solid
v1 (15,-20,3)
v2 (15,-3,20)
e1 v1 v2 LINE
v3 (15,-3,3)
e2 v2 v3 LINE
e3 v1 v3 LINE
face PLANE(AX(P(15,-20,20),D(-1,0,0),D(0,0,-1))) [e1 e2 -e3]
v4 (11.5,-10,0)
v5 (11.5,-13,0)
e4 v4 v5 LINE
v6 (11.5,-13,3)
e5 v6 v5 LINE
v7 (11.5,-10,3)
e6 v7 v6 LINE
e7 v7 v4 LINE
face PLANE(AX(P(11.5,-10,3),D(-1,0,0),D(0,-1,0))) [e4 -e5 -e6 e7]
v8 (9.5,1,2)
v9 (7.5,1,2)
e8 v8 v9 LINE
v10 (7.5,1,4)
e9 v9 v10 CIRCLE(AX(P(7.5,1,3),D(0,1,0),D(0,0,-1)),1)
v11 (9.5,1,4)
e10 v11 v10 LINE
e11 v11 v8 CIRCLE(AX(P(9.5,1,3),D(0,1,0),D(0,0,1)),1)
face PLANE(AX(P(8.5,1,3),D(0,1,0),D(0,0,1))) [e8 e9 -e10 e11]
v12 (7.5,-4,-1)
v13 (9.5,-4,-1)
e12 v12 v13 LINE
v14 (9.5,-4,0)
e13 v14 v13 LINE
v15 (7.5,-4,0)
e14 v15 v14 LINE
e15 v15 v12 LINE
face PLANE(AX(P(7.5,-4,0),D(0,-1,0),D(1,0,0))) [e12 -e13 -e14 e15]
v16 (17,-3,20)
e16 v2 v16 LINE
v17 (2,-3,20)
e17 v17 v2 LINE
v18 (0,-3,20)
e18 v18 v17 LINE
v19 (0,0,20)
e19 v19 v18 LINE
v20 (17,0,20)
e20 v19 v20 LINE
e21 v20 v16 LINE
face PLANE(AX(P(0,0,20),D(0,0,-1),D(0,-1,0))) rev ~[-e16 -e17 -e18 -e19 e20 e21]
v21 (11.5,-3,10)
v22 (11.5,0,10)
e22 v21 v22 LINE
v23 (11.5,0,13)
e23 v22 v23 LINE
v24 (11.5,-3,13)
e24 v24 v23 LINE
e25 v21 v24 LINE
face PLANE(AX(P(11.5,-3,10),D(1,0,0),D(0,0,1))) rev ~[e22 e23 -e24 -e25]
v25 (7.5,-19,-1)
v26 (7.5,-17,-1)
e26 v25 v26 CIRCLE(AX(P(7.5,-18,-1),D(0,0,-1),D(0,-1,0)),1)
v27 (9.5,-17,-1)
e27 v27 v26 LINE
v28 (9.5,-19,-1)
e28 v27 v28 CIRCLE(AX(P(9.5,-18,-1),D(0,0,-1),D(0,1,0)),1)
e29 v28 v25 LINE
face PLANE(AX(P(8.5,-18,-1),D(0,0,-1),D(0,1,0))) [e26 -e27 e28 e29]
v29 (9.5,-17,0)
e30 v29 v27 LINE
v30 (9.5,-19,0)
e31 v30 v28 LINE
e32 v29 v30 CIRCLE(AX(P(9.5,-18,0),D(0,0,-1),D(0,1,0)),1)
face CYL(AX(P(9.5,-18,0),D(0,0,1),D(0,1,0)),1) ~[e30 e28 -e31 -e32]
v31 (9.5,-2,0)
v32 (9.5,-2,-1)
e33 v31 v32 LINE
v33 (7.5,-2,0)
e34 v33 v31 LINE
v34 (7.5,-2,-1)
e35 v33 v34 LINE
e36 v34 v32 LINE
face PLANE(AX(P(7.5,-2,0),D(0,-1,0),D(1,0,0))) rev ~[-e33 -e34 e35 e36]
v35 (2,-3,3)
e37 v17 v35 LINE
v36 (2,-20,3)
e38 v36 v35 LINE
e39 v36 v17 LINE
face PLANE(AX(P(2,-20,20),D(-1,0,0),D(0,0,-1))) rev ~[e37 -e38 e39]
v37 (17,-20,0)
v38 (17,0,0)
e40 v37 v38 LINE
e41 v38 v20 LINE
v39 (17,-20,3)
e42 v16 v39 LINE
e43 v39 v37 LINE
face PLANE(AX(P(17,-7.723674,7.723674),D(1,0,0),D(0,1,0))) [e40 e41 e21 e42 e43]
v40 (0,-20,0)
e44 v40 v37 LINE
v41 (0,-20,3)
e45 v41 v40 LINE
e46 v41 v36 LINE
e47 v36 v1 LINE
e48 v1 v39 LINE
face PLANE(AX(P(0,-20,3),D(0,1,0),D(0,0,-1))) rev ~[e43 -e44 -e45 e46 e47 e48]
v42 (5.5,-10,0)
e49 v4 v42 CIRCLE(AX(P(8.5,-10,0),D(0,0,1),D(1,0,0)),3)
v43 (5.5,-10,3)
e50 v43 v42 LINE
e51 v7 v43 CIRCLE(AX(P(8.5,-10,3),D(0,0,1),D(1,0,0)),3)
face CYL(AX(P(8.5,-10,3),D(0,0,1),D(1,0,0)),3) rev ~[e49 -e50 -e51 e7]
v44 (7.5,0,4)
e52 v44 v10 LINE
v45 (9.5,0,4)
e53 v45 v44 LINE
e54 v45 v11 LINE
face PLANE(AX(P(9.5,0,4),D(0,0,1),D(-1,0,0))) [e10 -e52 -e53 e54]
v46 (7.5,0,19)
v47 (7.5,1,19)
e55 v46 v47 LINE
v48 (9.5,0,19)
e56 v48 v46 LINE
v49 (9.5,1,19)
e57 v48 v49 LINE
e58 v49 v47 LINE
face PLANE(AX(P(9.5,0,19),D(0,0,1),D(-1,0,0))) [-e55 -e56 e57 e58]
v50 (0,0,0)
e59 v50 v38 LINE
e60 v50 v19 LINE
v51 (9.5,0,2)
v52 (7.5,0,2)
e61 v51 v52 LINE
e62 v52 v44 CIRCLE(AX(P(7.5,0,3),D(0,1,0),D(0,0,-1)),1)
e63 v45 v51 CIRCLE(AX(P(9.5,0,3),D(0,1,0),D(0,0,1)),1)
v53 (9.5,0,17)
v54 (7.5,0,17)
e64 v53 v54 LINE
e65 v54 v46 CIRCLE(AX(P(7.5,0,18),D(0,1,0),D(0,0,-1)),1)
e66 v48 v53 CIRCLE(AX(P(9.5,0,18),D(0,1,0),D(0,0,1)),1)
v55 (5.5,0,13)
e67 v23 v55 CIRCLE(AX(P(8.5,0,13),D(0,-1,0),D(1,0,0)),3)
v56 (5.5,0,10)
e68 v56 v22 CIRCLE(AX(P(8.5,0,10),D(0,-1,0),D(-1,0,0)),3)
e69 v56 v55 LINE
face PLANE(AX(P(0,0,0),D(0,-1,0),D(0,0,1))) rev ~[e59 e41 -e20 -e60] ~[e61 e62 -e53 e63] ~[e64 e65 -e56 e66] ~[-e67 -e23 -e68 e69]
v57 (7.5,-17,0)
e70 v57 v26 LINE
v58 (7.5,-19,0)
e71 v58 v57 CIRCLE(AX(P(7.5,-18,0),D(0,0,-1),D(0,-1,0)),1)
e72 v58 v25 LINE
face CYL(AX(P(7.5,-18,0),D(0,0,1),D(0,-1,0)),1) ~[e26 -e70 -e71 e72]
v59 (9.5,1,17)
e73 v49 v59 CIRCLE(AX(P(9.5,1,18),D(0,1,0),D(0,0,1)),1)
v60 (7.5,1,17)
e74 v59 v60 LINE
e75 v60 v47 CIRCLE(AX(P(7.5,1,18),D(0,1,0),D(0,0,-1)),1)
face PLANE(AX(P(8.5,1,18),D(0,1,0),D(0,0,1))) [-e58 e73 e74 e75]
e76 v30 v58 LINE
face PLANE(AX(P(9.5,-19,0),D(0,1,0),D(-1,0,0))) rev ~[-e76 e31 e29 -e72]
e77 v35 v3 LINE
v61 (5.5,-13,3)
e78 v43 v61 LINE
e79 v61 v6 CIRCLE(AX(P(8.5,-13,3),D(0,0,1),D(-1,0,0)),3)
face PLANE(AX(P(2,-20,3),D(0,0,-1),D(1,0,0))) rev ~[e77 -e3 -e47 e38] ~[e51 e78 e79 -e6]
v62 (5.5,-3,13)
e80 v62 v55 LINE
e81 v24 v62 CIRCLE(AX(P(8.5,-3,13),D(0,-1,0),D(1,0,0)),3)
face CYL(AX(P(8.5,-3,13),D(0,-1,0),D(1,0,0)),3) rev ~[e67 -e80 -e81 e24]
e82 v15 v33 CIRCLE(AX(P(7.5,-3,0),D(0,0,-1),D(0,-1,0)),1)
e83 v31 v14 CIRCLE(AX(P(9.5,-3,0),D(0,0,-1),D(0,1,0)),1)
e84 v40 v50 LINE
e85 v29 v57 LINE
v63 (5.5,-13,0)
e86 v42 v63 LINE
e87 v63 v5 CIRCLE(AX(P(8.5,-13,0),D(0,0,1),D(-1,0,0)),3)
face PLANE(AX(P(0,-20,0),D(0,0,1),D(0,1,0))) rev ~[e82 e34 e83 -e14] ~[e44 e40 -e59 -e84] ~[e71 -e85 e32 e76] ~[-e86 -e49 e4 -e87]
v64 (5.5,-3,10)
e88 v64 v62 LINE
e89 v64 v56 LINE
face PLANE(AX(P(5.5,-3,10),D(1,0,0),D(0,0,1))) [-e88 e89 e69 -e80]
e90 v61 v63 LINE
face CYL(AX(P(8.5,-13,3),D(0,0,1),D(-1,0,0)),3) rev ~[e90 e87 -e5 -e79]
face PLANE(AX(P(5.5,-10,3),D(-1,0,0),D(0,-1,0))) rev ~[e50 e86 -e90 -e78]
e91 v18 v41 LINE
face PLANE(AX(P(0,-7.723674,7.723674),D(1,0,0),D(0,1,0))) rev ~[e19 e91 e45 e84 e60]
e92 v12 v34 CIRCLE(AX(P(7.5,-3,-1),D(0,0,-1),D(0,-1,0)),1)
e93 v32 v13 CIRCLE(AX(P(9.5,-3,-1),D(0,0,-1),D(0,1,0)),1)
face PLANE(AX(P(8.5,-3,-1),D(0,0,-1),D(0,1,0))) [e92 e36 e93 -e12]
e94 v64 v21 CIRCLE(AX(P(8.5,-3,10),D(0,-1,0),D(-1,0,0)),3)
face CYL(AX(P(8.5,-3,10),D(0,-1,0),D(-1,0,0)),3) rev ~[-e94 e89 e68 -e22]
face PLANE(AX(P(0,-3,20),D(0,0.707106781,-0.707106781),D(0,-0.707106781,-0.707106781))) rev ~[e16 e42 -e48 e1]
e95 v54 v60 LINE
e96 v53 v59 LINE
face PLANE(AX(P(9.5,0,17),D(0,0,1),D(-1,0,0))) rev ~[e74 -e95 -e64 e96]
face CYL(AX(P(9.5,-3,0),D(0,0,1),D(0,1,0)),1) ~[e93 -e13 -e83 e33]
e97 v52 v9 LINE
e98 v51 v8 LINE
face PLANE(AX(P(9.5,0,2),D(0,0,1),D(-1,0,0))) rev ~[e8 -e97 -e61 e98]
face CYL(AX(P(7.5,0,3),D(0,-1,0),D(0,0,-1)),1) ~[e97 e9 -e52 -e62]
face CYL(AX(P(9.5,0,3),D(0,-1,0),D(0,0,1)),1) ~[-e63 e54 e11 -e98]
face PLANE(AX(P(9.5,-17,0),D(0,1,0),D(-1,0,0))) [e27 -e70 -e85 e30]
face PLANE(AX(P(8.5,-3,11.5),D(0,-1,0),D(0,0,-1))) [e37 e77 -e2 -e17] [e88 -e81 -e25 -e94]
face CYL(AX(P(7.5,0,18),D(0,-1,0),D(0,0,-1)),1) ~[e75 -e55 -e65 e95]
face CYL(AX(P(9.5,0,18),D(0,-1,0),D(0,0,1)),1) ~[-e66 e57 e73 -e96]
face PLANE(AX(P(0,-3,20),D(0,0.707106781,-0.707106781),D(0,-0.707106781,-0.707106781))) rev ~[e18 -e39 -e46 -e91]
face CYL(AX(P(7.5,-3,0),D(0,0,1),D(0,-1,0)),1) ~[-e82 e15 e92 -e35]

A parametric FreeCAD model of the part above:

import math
import FreeCAD as App
import Part
import Sketcher
Q = App.Units.Quantity

doc = App.newDocument("Part")
params = doc.addObject("Spreadsheet::Sheet", "Params")
for row, (alias, value) in enumerate([
    ("sketch1_width", "3 mm"),
    ("sketch1_width2", "20 mm"),
    ("pad1_length", "17 mm"),
    ("sketch2_width", "13 mm"),
    ("sketch2_height", "17 mm"),
    ("pocket1_length", "17 mm"),
    ("sketch3_radius", "3 mm"),
    ("sketch3_height", "3 mm"),
    ("pocket2_length", "3 mm"),
    ("sketch4_radius", "3 mm"),
    ("sketch4_height", "3 mm"),
    ("pocket3_length", "3 mm"),
    ("sketch5_radius", "1 mm"),
    ("sketch5_width", "2 mm"),
    ("pad2_length", "1 mm"),
    ("sketch6_radius", "1 mm"),
    ("sketch6_width", "2 mm"),
    ("pad3_length", "1 mm"),
], start=1):
    params.set(f"A{row}", alias)
    params.set(f"B{row}", "=" + value)
    params.setAlias(f"B{row}", alias)

body = doc.addObject("PartDesign::Body", "Body")

# Sketch on YZ plane
sketch1 = body.newObject("Sketcher::SketchObject", "Sketch")
sketch1.AttachmentSupport = (doc.getObject("YZ_Plane"), [""])
sketch1.MapMode = "FlatFace"
sketch1.addGeometry(Part.LineSegment(App.Vector(0, 0, 0), App.Vector(0, 20, 0)), False)
sketch1.addGeometry(Part.LineSegment(App.Vector(0, 20, 0), App.Vector(-3, 20, 0)), False)
sketch1.addGeometry(Part.LineSegment(App.Vector(-3, 20, 0), App.Vector(-20, 3, 0)), False)
sketch1.addGeometry(Part.LineSegment(App.Vector(-20, 3, 0), App.Vector(-20, 0, 0)), False)
sketch1.addGeometry(Part.LineSegment(App.Vector(-20, 0, 0), App.Vector(0, 0, 0)), False)
sketch1.addConstraint(Sketcher.Constraint("Coincident", 0, 2, 1, 1))
sketch1.addConstraint(Sketcher.Constraint("Coincident", 1, 2, 2, 1))
sketch1.addConstraint(Sketcher.Constraint("Coincident", 2, 2, 3, 1))
sketch1.addConstraint(Sketcher.Constraint("Coincident", 3, 2, 4, 1))
sketch1.addConstraint(Sketcher.Constraint("Coincident", 4, 2, 0, 1))
sketch1.addConstraint(Sketcher.Constraint("Vertical", 0))
sketch1.addConstraint(Sketcher.Constraint("Horizontal", 1))
sketch1.addConstraint(Sketcher.Constraint("Vertical", 3))
sketch1.addConstraint(Sketcher.Constraint("Horizontal", 4))
sketch1.addConstraint(Sketcher.Constraint("Coincident", 4, 2, -1, 1))
sketch1.addConstraint(Sketcher.Constraint("Equal", 4, 0))
sketch1.addConstraint(Sketcher.Constraint("Equal", 1, 3))
sketch1.addConstraint(Sketcher.Constraint("DistanceX", 1, 2, 1, 1, Q("3 mm")))
sketch1.addConstraint(Sketcher.Constraint("DistanceX", 4, 1, 4, 2, Q("20 mm")))
sketch1.setExpression("Constraints[12]", "Params.sketch1_width")
sketch1.setExpression("Constraints[13]", "Params.sketch1_width2")
pad1 = body.newObject("PartDesign::Pad", "Pad")
pad1.Profile = sketch1
pad1.setExpression("Length", "Params.pad1_length")

# Sketch on XZ plane
sketch2 = body.newObject("Sketcher::SketchObject", "Sketch001")
sketch2.AttachmentSupport = (doc.getObject("XZ_Plane"), [""])
sketch2.MapMode = "FlatFace"
sketch2.AttachmentOffset = App.Placement(App.Vector(0, 0, 20), App.Rotation())
sketch2.addGeometry(Part.LineSegment(App.Vector(15, 20, 0), App.Vector(2, 20, 0)), False)
sketch2.addGeometry(Part.LineSegment(App.Vector(2, 20, 0), App.Vector(2, 3, 0)), False)
sketch2.addGeometry(Part.LineSegment(App.Vector(2, 3, 0), App.Vector(15, 3, 0)), False)
sketch2.addGeometry(Part.LineSegment(App.Vector(15, 3, 0), App.Vector(15, 20, 0)), False)
sketch2.addConstraint(Sketcher.Constraint("Coincident", 0, 2, 1, 1))
sketch2.addConstraint(Sketcher.Constraint("Coincident", 1, 2, 2, 1))
sketch2.addConstraint(Sketcher.Constraint("Coincident", 2, 2, 3, 1))
sketch2.addConstraint(Sketcher.Constraint("Coincident", 3, 2, 0, 1))
sketch2.addConstraint(Sketcher.Constraint("Horizontal", 0))
sketch2.addConstraint(Sketcher.Constraint("Vertical", 1))
sketch2.addConstraint(Sketcher.Constraint("Horizontal", 2))
sketch2.addConstraint(Sketcher.Constraint("Vertical", 3))
sketch2.addConstraint(Sketcher.Constraint("DistanceX", 0, 2, 0, 1, Q("13 mm")))
sketch2.addConstraint(Sketcher.Constraint("DistanceY", 1, 2, 1, 1, Q("17 mm")))
sketch2.addConstraint(Sketcher.Constraint("DistanceX", -1, 1, 0, 2, Q("2 mm")))
sketch2.addConstraint(Sketcher.Constraint("DistanceY", -1, 1, 0, 2, Q("20 mm")))
sketch2.setExpression("Constraints[8]", "Params.sketch2_width")
sketch2.setExpression("Constraints[9]", "Params.sketch2_height")
pocket1 = body.newObject("PartDesign::Pocket", "Pocket")
pocket1.Profile = sketch2
pocket1.setExpression("Length", "Params.pocket1_length")

# Sketch on XZ plane
sketch3 = body.newObject("Sketcher::SketchObject", "Sketch002")
sketch3.AttachmentSupport = (doc.getObject("XZ_Plane"), [""])
sketch3.MapMode = "FlatFace"
sketch3.AttachmentOffset = App.Placement(App.Vector(0, 0, 3), App.Rotation())
sketch3.addGeometry(Part.ArcOfCircle(Part.Circle(App.Vector(8.5, 10, 0), App.Vector(0, 0, 1), 3), math.radians(180), math.radians(360)), False)
sketch3.addGeometry(Part.LineSegment(App.Vector(11.5, 10, 0), App.Vector(11.5, 13, 0)), False)
sketch3.addGeometry(Part.ArcOfCircle(Part.Circle(App.Vector(8.5, 13, 0), App.Vector(0, 0, 1), 3), math.radians(0), math.radians(180)), False)
sketch3.addGeometry(Part.LineSegment(App.Vector(5.5, 13, 0), App.Vector(5.5, 10, 0)), False)
sketch3.addConstraint(Sketcher.Constraint("Tangent", 0, 2, 1, 1))
sketch3.addConstraint(Sketcher.Constraint("Tangent", 1, 2, 2, 1))
sketch3.addConstraint(Sketcher.Constraint("Tangent", 2, 2, 3, 1))
sketch3.addConstraint(Sketcher.Constraint("Tangent", 3, 2, 0, 1))
sketch3.addConstraint(Sketcher.Constraint("Vertical", 1))
sketch3.addConstraint(Sketcher.Constraint("Vertical", 3))
sketch3.addConstraint(Sketcher.Constraint("Radius", 0, Q("3 mm")))
sketch3.addConstraint(Sketcher.Constraint("DistanceY", 1, 1, 1, 2, Q("3 mm")))
sketch3.addConstraint(Sketcher.Constraint("DistanceY", -1, 1, 0, 3, Q("10 mm")))
sketch3.addConstraint(Sketcher.Constraint("DistanceX", -1, 1, 0, 3, Q("8.5 mm")))
sketch3.setExpression("Constraints[6]", "Params.sketch3_radius")
sketch3.setExpression("Constraints[7]", "Params.sketch3_height")
pocket2 = body.newObject("PartDesign::Pocket", "Pocket001")
pocket2.Profile = sketch3
pocket2.setExpression("Length", "Params.pocket2_length")

# Sketch on XY plane
sketch4 = body.newObject("Sketcher::SketchObject", "Sketch003")
sketch4.AttachmentSupport = (doc.getObject("XY_Plane"), [""])
sketch4.MapMode = "FlatFace"
sketch4.AttachmentOffset = App.Placement(App.Vector(0, 0, 3), App.Rotation())
sketch4.addGeometry(Part.ArcOfCircle(Part.Circle(App.Vector(8.5, -10, 0), App.Vector(0, 0, 1), 3), math.radians(0), math.radians(180)), False)
sketch4.addGeometry(Part.LineSegment(App.Vector(5.5, -10, 0), App.Vector(5.5, -13, 0)), False)
sketch4.addGeometry(Part.ArcOfCircle(Part.Circle(App.Vector(8.5, -13, 0), App.Vector(0, 0, 1), 3), math.radians(180), math.radians(360)), False)
sketch4.addGeometry(Part.LineSegment(App.Vector(11.5, -13, 0), App.Vector(11.5, -10, 0)), False)
sketch4.addConstraint(Sketcher.Constraint("Tangent", 0, 2, 1, 1))
sketch4.addConstraint(Sketcher.Constraint("Tangent", 1, 2, 2, 1))
sketch4.addConstraint(Sketcher.Constraint("Tangent", 2, 2, 3, 1))
sketch4.addConstraint(Sketcher.Constraint("Tangent", 3, 2, 0, 1))
sketch4.addConstraint(Sketcher.Constraint("Vertical", 1))
sketch4.addConstraint(Sketcher.Constraint("Vertical", 3))
sketch4.addConstraint(Sketcher.Constraint("Radius", 0, Q("3 mm")))
sketch4.addConstraint(Sketcher.Constraint("DistanceY", 1, 2, 1, 1, Q("3 mm")))
sketch4.addConstraint(Sketcher.Constraint("DistanceY", 0, 3, -1, 1, Q("10 mm")))
sketch4.addConstraint(Sketcher.Constraint("DistanceX", -1, 1, 0, 3, Q("8.5 mm")))
sketch4.setExpression("Constraints[6]", "Params.sketch4_radius")
sketch4.setExpression("Constraints[7]", "Params.sketch4_height")
pocket3 = body.newObject("PartDesign::Pocket", "Pocket002")
pocket3.Profile = sketch4
pocket3.setExpression("Length", "Params.pocket3_length")

# Sketch on XZ plane
sketch5 = body.newObject("Sketcher::SketchObject", "Sketch004")
sketch5.AttachmentSupport = (doc.getObject("XZ_Plane"), [""])
sketch5.MapMode = "FlatFace"
sketch5.addGeometry(Part.ArcOfCircle(Part.Circle(App.Vector(9.5, 3, 0), App.Vector(0, 0, 1), 1), math.radians(-90), math.radians(90)), False)
sketch5.addGeometry(Part.LineSegment(App.Vector(9.5, 2, 0), App.Vector(7.5, 2, 0)), False)
sketch5.addGeometry(Part.ArcOfCircle(Part.Circle(App.Vector(7.5, 3, 0), App.Vector(0, 0, 1), 1), math.radians(90), math.radians(270)), False)
sketch5.addGeometry(Part.LineSegment(App.Vector(7.5, 4, 0), App.Vector(9.5, 4, 0)), False)
sketch5.addGeometry(Part.ArcOfCircle(Part.Circle(App.Vector(9.5, 18, 0), App.Vector(0, 0, 1), 1), math.radians(-90), math.radians(90)), False)
sketch5.addGeometry(Part.LineSegment(App.Vector(9.5, 17, 0), App.Vector(7.5, 17, 0)), False)
sketch5.addGeometry(Part.ArcOfCircle(Part.Circle(App.Vector(7.5, 18, 0), App.Vector(0, 0, 1), 1), math.radians(90), math.radians(270)), False)
sketch5.addGeometry(Part.LineSegment(App.Vector(7.5, 19, 0), App.Vector(9.5, 19, 0)), False)
sketch5.addConstraint(Sketcher.Constraint("Tangent", 0, 1, 1, 1))
sketch5.addConstraint(Sketcher.Constraint("Tangent", 1, 2, 2, 2))
sketch5.addConstraint(Sketcher.Constraint("Tangent", 2, 1, 3, 1))
sketch5.addConstraint(Sketcher.Constraint("Tangent", 3, 2, 0, 2))
sketch5.addConstraint(Sketcher.Constraint("Tangent", 4, 1, 5, 1))
sketch5.addConstraint(Sketcher.Constraint("Tangent", 5, 2, 6, 2))
sketch5.addConstraint(Sketcher.Constraint("Tangent", 6, 1, 7, 1))
sketch5.addConstraint(Sketcher.Constraint("Tangent", 7, 2, 4, 2))
sketch5.addConstraint(Sketcher.Constraint("Horizontal", 1))
sketch5.addConstraint(Sketcher.Constraint("Horizontal", 3))
sketch5.addConstraint(Sketcher.Constraint("Horizontal", 5))
sketch5.addConstraint(Sketcher.Constraint("Horizontal", 7))
sketch5.addConstraint(Sketcher.Constraint("Equal", 2, 4))
sketch5.addConstraint(Sketcher.Constraint("Vertical", 0, 3, 4, 3))
sketch5.addConstraint(Sketcher.Constraint("Vertical", 2, 3, 6, 3))
sketch5.addConstraint(Sketcher.Constraint("Radius", 0, Q("1 mm")))
sketch5.addConstraint(Sketcher.Constraint("DistanceX", 1, 2, 1, 1, Q("2 mm")))
sketch5.addConstraint(Sketcher.Constraint("DistanceY", -1, 1, 0, 3, Q("3 mm")))
sketch5.addConstraint(Sketcher.Constraint("DistanceY", -1, 1, 4, 3, Q("18 mm")))
sketch5.addConstraint(Sketcher.Constraint("DistanceX", -1, 1, 0, 3, Q("9.5 mm")))
sketch5.setExpression("Constraints[15]", "Params.sketch5_radius")
sketch5.setExpression("Constraints[16]", "Params.sketch5_width")
pad2 = body.newObject("PartDesign::Pad", "Pad001")
pad2.Profile = sketch5
pad2.setExpression("Length", "Params.pad2_length")
pad2.Reversed = True

# Sketch on XY plane
sketch6 = body.newObject("Sketcher::SketchObject", "Sketch005")
sketch6.AttachmentSupport = (doc.getObject("XY_Plane"), [""])
sketch6.MapMode = "FlatFace"
sketch6.addGeometry(Part.ArcOfCircle(Part.Circle(App.Vector(7.5, -3, 0), App.Vector(0, 0, 1), 1), math.radians(90), math.radians(270)), False)
sketch6.addGeometry(Part.LineSegment(App.Vector(7.5, -2, 0), App.Vector(9.5, -2, 0)), False)
sketch6.addGeometry(Part.ArcOfCircle(Part.Circle(App.Vector(9.5, -3, 0), App.Vector(0, 0, 1), 1), math.radians(-90), math.radians(90)), False)
sketch6.addGeometry(Part.LineSegment(App.Vector(9.5, -4, 0), App.Vector(7.5, -4, 0)), False)
sketch6.addGeometry(Part.ArcOfCircle(Part.Circle(App.Vector(9.5, -18, 0), App.Vector(0, 0, 1), 1), math.radians(-90), math.radians(90)), False)
sketch6.addGeometry(Part.LineSegment(App.Vector(9.5, -19, 0), App.Vector(7.5, -19, 0)), False)
sketch6.addGeometry(Part.ArcOfCircle(Part.Circle(App.Vector(7.5, -18, 0), App.Vector(0, 0, 1), 1), math.radians(90), math.radians(270)), False)
sketch6.addGeometry(Part.LineSegment(App.Vector(7.5, -17, 0), App.Vector(9.5, -17, 0)), False)
sketch6.addConstraint(Sketcher.Constraint("Tangent", 0, 1, 1, 1))
sketch6.addConstraint(Sketcher.Constraint("Tangent", 1, 2, 2, 2))
sketch6.addConstraint(Sketcher.Constraint("Tangent", 2, 1, 3, 1))
sketch6.addConstraint(Sketcher.Constraint("Tangent", 3, 2, 0, 2))
sketch6.addConstraint(Sketcher.Constraint("Tangent", 4, 1, 5, 1))
sketch6.addConstraint(Sketcher.Constraint("Tangent", 5, 2, 6, 2))
sketch6.addConstraint(Sketcher.Constraint("Tangent", 6, 1, 7, 1))
sketch6.addConstraint(Sketcher.Constraint("Tangent", 7, 2, 4, 2))
sketch6.addConstraint(Sketcher.Constraint("Horizontal", 1))
sketch6.addConstraint(Sketcher.Constraint("Horizontal", 3))
sketch6.addConstraint(Sketcher.Constraint("Horizontal", 5))
sketch6.addConstraint(Sketcher.Constraint("Horizontal", 7))
sketch6.addConstraint(Sketcher.Constraint("Equal", 2, 4))
sketch6.addConstraint(Sketcher.Constraint("Vertical", 2, 3, 4, 3))
sketch6.addConstraint(Sketcher.Constraint("Vertical", 0, 3, 6, 3))
sketch6.addConstraint(Sketcher.Constraint("Radius", 0, Q("1 mm")))
sketch6.addConstraint(Sketcher.Constraint("DistanceX", 1, 1, 1, 2, Q("2 mm")))
sketch6.addConstraint(Sketcher.Constraint("DistanceY", 0, 3, -1, 1, Q("3 mm")))
sketch6.addConstraint(Sketcher.Constraint("DistanceY", 4, 3, -1, 1, Q("18 mm")))
sketch6.addConstraint(Sketcher.Constraint("DistanceX", -1, 1, 0, 3, Q("7.5 mm")))
sketch6.setExpression("Constraints[15]", "Params.sketch6_radius")
sketch6.setExpression("Constraints[16]", "Params.sketch6_width")
pad3 = body.newObject("PartDesign::Pad", "Pad002")
pad3.Profile = sketch6
pad3.setExpression("Length", "Params.pad3_length")
pad3.Reversed = True

doc.recompute()
